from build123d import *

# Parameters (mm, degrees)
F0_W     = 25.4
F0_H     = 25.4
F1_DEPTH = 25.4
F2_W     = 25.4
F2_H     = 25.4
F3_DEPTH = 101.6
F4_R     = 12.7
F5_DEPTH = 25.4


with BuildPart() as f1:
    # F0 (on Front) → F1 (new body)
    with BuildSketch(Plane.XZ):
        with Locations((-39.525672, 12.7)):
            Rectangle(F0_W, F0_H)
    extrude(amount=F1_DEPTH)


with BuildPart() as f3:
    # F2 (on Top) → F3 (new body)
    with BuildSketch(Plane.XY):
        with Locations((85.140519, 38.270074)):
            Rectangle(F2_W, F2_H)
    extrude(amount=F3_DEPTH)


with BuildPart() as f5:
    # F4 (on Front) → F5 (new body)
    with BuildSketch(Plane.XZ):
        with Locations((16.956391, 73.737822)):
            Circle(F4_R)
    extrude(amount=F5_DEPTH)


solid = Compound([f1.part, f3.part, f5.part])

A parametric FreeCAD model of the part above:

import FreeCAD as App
import Part
import Sketcher
from FreeCAD import Vector
Q = App.Units.Quantity


def add_polygon(sketch, points):
    """Adds a closed chain of lines whose ends are joined by coincident constraints."""
    first, n = sketch.GeometryCount, len(points)
    for a, b in zip(points, points[1:] + points[:1]):
        sketch.addGeometry(Part.LineSegment(App.Vector(*a, 0), App.Vector(*b, 0)), False)
    for i in range(n):
        sketch.addConstraint(Sketcher.Constraint("Coincident", first + i, 2, first + (i + 1) % n, 1))

doc = App.newDocument("Part")
body = doc.addObject("PartDesign::Body", "Body")

# Sketch on XZ plane
sketch1 = body.newObject("Sketcher::SketchObject", "Sketch")
sketch1.AttachmentSupport = (doc.getObject("XZ_Plane"), [""])
sketch1.MapMode = "FlatFace"
add_polygon(sketch1, [(-52, 25), (-52, 0), (-27, 0), (-27, 25)])  # lines 0-3
sketch1.addConstraint([
    Sketcher.Constraint("Vertical", 0),
    Sketcher.Constraint("Horizontal", 1),
    Sketcher.Constraint("Vertical", 2),
    Sketcher.Constraint("Horizontal", 3),
    Sketcher.Constraint("PointOnObject", 0, 2, -1),
    Sketcher.Constraint("Equal", 3, 0),
    Sketcher.Constraint("DistanceX", 1, 1, 1, 2, Q("1 in")),
    Sketcher.Constraint("DistanceX", 0, 2, -1, 1, 52.225672),
])
pad1 = body.newObject("PartDesign::Pad", "Pad")
pad1.Profile = sketch1
pad1.Length = Q("1 in")
body2 = doc.addObject("PartDesign::Body", "Body001")

# Sketch on XY plane
sketch2 = body2.newObject("Sketcher::SketchObject", "Sketch001")
sketch2.AttachmentSupport = (doc.getObject("XY_Plane001"), [""])
sketch2.MapMode = "FlatFace"
add_polygon(sketch2, [(72, 51), (72, 26), (98, 26), (98, 51)])  # lines 0-3
sketch2.addConstraint([
    Sketcher.Constraint("Vertical", 0),
    Sketcher.Constraint("Horizontal", 1),
    Sketcher.Constraint("Vertical", 2),
    Sketcher.Constraint("Horizontal", 3),
    Sketcher.Constraint("Equal", 3, 0),
    Sketcher.Constraint("DistanceX", 1, 1, 1, 2, Q("1 in")),
    Sketcher.Constraint("DistanceX", -1, 1, 0, 2, 72.440519),
    Sketcher.Constraint("DistanceY", -1, 1, 0, 2, 25.570074),
])
pad2 = body2.newObject("PartDesign::Pad", "Pad001")
pad2.Profile = sketch2
pad2.Length = Q("4 in")
body3 = doc.addObject("PartDesign::Body", "Body002")

# Sketch on XZ plane
sketch3 = body3.newObject("Sketcher::SketchObject", "Sketch002")
sketch3.AttachmentSupport = (doc.getObject("XZ_Plane002"), [""])
sketch3.MapMode = "FlatFace"
sketch3.addGeometry(Part.Circle(Vector(17, 74, 0), Vector(0, 0, 1), 13), False)
sketch3.addConstraint([
    Sketcher.Constraint("Diameter", 0, Q("1 in")),
    Sketcher.Constraint("DistanceX", -1, 1, 0, 3, 16.956391),
    Sketcher.Constraint("DistanceY", -1, 1, 0, 3, 73.737822),
])
pad3 = body3.newObject("PartDesign::Pad", "Pad002")
pad3.Profile = sketch3
pad3.Length = Q("1 in")

doc.recompute()
